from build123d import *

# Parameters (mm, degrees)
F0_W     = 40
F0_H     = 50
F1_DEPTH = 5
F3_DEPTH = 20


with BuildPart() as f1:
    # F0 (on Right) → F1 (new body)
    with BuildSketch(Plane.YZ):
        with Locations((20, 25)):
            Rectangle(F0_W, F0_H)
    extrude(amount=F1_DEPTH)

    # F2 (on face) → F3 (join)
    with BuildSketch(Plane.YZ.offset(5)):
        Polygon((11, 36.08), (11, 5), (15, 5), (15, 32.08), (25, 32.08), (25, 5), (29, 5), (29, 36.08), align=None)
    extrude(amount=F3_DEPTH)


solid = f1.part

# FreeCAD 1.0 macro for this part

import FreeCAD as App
import Part
import Sketcher
from FreeCAD import Vector


def add_polygon(sketch, points):
    """Adds a closed chain of lines whose ends are joined by coincident constraints."""
    first, n = sketch.GeometryCount, len(points)
    for a, b in zip(points, points[1:] + points[:1]):
        sketch.addGeometry(Part.LineSegment(App.Vector(*a, 0), App.Vector(*b, 0)), False)
    for i in range(n):
        sketch.addConstraint(Sketcher.Constraint("Coincident", first + i, 2, first + (i + 1) % n, 1))

doc = App.newDocument("Part")
body = doc.addObject("PartDesign::Body", "Body")

sketch1 = body.newObject("Sketcher::SketchObject", "Sketch")
sketch1.AttachmentSupport = (doc.getObject("YZ_Plane"), [""])
sketch1.MapMode = "FlatFace"
add_polygon(sketch1, [(0, 50), (0, 0), (40, 0), (40, 50)])
sketch1.addConstraint(Sketcher.Constraint("Vertical", 0))
sketch1.addConstraint(Sketcher.Constraint("Horizontal", 1))
sketch1.addConstraint(Sketcher.Constraint("Vertical", 2))
sketch1.addConstraint(Sketcher.Constraint("Horizontal", 3))
sketch1.addConstraint(Sketcher.Constraint("Coincident", 0, 2, -1, 1))
sketch1.addConstraint(Sketcher.Constraint("DistanceX", 1, 1, 1, 2, 40.0))
sketch1.addConstraint(Sketcher.Constraint("DistanceY", 0, 2, 0, 1, 50.0))
pad1 = body.newObject("PartDesign::Pad", "Pad")
pad1.Profile = sketch1
pad1.Length = 5

sketch2 = body.newObject("Sketcher::SketchObject", "Sketch001")
sketch2.AttachmentSupport = (doc.getObject("YZ_Plane"), [""])
sketch2.MapMode = "FlatFace"
sketch2.AttachmentOffset = App.Placement(Vector(0, 0, 5), App.Rotation())
add_polygon(sketch2, [(11, 36.1), (11, 5), (15, 5), (15, 32.1), (25, 32.1), (25, 5), (29, 5), (29, 36.1)])
sketch2.addConstraint(Sketcher.Constraint("Vertical", 0))
sketch2.addConstraint(Sketcher.Constraint("Horizontal", 1))
sketch2.addConstraint(Sketcher.Constraint("Vertical", 2))
sketch2.addConstraint(Sketcher.Constraint("Horizontal", 3))
sketch2.addConstraint(Sketcher.Constraint("Vertical", 4))
sketch2.addConstraint(Sketcher.Constraint("Horizontal", 5))
sketch2.addConstraint(Sketcher.Constraint("Vertical", 6))
sketch2.addConstraint(Sketcher.Constraint("Horizontal", 7))
sketch2.addConstraint(Sketcher.Constraint("Horizontal", 1, 2, 4, 2))
sketch2.addConstraint(Sketcher.Constraint("Equal", 1, 5))
sketch2.addConstraint(Sketcher.Constraint("DistanceX", 1, 1, 1, 2, 4.0))
sketch2.addConstraint(Sketcher.Constraint("DistanceX", 3, 1, 3, 2, 10.0))
sketch2.addConstraint(Sketcher.Constraint("DistanceX", -1, 1, 0, 2, 11.0))
sketch2.addConstraint(Sketcher.Constraint("DistanceY", -1, 1, 0, 2, 5.0))
sketch2.addConstraint(Sketcher.Constraint("DistanceY", 3, 2, 6, 2, 4.0))
sketch2.addConstraint(Sketcher.Constraint("DistanceY", 0, 2, 0, 1, 31.08))
pad2 = body.newObject("PartDesign::Pad", "Pad001")
pad2.Profile = sketch2
pad2.Length = 20

doc.recompute()
